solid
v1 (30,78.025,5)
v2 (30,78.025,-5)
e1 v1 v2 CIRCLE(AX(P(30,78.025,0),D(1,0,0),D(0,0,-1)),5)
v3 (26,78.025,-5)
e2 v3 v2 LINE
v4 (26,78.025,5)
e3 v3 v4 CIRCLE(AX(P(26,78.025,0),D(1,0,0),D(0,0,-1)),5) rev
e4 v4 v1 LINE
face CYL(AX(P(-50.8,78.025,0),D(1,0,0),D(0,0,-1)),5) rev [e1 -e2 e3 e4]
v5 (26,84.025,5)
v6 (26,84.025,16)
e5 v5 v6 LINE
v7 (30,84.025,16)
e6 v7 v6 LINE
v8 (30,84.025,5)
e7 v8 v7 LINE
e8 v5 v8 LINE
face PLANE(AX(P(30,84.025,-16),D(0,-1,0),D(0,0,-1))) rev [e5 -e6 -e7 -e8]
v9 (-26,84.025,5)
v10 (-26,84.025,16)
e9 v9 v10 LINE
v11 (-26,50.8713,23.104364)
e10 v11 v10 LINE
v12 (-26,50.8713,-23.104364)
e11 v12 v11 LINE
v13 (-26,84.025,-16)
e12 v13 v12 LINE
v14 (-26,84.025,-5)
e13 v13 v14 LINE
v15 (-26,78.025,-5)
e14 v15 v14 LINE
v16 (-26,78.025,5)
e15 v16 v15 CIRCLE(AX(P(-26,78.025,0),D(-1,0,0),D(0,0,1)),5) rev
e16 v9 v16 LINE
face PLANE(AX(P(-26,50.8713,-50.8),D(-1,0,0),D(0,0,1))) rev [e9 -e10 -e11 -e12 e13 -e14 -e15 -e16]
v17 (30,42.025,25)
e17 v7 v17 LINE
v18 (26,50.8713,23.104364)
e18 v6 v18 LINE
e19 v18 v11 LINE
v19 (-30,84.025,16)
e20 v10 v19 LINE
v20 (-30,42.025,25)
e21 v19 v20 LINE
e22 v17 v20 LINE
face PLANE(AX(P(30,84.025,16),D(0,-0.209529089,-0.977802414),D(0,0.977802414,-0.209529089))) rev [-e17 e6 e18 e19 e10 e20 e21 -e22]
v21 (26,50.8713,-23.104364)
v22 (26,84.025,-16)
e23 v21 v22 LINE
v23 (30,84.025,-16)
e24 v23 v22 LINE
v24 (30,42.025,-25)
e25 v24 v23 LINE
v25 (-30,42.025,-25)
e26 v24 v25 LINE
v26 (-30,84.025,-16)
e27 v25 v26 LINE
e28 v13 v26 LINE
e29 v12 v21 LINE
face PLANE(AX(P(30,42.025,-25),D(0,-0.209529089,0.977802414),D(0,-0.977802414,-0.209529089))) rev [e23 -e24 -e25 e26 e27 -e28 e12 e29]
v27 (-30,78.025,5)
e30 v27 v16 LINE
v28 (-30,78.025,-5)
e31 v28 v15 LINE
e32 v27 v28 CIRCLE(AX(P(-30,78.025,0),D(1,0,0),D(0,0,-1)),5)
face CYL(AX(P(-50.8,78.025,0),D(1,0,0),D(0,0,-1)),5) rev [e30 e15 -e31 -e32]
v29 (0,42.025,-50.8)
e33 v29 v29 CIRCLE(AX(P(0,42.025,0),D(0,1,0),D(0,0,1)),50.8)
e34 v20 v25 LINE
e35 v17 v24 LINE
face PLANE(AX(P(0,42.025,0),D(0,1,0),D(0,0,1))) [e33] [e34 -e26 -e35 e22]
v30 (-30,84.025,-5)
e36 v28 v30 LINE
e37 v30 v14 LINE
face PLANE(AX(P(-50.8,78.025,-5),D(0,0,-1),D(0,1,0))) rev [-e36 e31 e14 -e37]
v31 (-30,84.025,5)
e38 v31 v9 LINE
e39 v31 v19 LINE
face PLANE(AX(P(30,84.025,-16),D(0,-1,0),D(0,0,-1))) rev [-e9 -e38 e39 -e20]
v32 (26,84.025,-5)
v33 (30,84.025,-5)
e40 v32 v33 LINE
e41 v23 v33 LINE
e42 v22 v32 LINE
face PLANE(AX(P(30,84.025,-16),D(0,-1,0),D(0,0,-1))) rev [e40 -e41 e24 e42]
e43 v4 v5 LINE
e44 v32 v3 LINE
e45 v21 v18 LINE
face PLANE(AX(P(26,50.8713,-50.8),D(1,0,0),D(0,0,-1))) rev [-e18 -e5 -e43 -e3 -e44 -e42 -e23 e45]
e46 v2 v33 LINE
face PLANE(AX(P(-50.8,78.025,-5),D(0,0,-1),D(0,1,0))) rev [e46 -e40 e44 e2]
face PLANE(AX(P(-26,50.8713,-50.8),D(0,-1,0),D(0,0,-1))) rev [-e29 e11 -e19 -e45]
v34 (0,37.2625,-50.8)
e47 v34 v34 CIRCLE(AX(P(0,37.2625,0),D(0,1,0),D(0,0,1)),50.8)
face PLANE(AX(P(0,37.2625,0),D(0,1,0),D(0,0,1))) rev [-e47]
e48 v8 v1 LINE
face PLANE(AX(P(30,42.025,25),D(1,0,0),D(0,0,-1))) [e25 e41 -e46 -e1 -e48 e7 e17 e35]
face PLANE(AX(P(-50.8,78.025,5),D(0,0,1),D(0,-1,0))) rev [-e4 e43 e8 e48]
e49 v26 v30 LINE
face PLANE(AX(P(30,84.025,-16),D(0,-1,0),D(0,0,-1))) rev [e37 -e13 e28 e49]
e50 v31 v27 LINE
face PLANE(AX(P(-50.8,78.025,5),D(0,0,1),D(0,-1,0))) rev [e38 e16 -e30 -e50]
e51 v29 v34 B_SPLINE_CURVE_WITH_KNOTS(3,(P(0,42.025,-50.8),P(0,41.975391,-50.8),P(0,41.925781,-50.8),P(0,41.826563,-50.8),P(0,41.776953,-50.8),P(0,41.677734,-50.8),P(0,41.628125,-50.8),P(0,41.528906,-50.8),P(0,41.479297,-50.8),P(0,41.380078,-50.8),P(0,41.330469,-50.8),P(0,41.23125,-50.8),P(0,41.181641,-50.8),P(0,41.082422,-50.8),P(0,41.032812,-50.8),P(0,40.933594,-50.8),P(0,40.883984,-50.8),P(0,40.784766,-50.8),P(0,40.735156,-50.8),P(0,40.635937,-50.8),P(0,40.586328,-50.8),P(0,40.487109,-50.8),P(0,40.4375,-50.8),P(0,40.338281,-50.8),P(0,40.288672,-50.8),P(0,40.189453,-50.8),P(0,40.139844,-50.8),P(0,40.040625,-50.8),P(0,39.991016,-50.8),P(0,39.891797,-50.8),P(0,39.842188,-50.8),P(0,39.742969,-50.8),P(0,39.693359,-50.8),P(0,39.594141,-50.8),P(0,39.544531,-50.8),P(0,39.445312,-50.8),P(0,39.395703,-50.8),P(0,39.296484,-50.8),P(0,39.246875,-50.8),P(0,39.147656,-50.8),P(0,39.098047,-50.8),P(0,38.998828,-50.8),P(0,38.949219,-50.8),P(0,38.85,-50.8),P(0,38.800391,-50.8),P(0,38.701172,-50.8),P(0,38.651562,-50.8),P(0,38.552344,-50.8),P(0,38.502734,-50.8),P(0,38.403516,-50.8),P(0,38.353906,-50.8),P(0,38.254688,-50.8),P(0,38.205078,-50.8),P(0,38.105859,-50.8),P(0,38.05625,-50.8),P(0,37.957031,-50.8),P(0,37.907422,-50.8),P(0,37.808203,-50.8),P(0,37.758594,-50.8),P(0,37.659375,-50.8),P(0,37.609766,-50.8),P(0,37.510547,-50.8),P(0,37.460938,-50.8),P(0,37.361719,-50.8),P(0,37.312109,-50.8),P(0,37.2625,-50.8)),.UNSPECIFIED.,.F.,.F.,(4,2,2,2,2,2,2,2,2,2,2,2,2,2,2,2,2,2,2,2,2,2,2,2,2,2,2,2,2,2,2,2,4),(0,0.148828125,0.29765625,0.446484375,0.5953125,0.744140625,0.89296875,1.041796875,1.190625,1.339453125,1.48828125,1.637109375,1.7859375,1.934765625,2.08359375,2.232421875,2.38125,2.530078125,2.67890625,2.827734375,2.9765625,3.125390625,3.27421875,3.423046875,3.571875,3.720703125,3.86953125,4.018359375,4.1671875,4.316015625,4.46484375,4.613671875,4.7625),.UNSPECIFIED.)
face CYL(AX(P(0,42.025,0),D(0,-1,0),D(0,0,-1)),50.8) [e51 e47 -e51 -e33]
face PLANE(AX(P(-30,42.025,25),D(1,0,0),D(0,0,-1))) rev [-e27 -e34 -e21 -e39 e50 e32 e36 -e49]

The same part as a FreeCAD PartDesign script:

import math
import FreeCAD as App
import Part
import Sketcher

doc = App.newDocument("Part")
params = doc.addObject("Spreadsheet::Sheet", "Params")
for row, (alias, value) in enumerate([
    ("sketch1_diameter", "101.6 mm"),
    ("pad1_length", "4.7625 mm"),
    ("sketch2_height", "50 mm"),
    ("sketch2_height2", "32 mm"),
    ("pad2_length", "60 mm"),
    ("sketch3_radius", "5 mm"),
    ("sketch3_width", "6 mm"),
    ("sketch4_width", "52 mm"),
], start=1):
    params.set(f"A{row}", alias)
    params.set(f"B{row}", "=" + value)
    params.setAlias(f"B{row}", alias)

body = doc.addObject("PartDesign::Body", "Body")

sketch1 = body.newObject("Sketcher::SketchObject", "Sketch")
sketch1.AttachmentSupport = (doc.getObject("XZ_Plane"), [""])
sketch1.MapMode = "FlatFace"
sketch1.AttachmentOffset = App.Placement(App.Vector(0, 0, -37.2625), App.Rotation())
sketch1.addGeometry(Part.Circle(App.Vector(0, 0, 0), App.Vector(0, 0, 1), 51), False)
sketch1.addConstraint([
    Sketcher.Constraint("Coincident", 0, 3, -1, 1),
    Sketcher.Constraint("Diameter", 0, 101.6),
])
sketch1.setExpression("Constraints[1]", "Params.sketch1_diameter")
pad1 = body.newObject("PartDesign::Pad", "Pad")
pad1.Profile = sketch1
pad1.setExpression("Length", "Params.pad1_length")
pad1.Reversed = True

sketch2 = body.newObject("Sketcher::SketchObject", "Sketch001")
sketch2.AttachmentSupport = (doc.getObject("YZ_Plane"), [""])
sketch2.MapMode = "FlatFace"
sketch2.addGeometry([
    Part.LineSegment(App.Vector(42, 25, 0), App.Vector(42, -25, 0)),
    Part.LineSegment(App.Vector(42, -25, 0), App.Vector(84, -16, 0)),
    Part.LineSegment(App.Vector(84, -16, 0), App.Vector(84, 16, 0)),
    Part.LineSegment(App.Vector(84, 16, 0), App.Vector(42, 25, 0)),
], False)
sketch2.addConstraint([
    Sketcher.Constraint("Coincident", 0, 2, 1, 1),
    Sketcher.Constraint("Coincident", 1, 2, 2, 1),
    Sketcher.Constraint("Coincident", 2, 2, 3, 1),
    Sketcher.Constraint("Coincident", 3, 2, 0, 1),
    Sketcher.Constraint("Vertical", 0),
    Sketcher.Constraint("Vertical", 2),
    Sketcher.Constraint("Equal", 1, 3),
    Sketcher.Constraint("DistanceY", 0, 2, 0, 1, 50.0),
    Sketcher.Constraint("DistanceY", 2, 1, 2, 2, 32.0),
    Sketcher.Constraint("DistanceY", 0, 2, -1, 1, 25.0),
    Sketcher.Constraint("DistanceX", 0, 2, 1, 2, 42.0),
    Sketcher.Constraint("DistanceX", -1, 1, 0, 2, 42.025),
])
sketch2.setExpression("Constraints[7]", "Params.sketch2_height")
sketch2.setExpression("Constraints[8]", "Params.sketch2_height2")
pad2 = body.newObject("PartDesign::Pad", "Pad001")
pad2.Profile = sketch2
pad2.setExpression("Length", "Params.pad2_length")
pad2.Midplane = True

sketch3 = body.newObject("Sketcher::SketchObject", "Sketch002")
sketch3.AttachmentSupport = (doc.getObject("YZ_Plane"), [""])
sketch3.MapMode = "FlatFace"
sketch3.AttachmentOffset = App.Placement(App.Vector(0, 0, 30), App.Rotation())
sketch3.addGeometry([
    Part.LineSegment(App.Vector(78, -5, 0), App.Vector(84, -5, 0)),
    Part.LineSegment(App.Vector(84, -5, 0), App.Vector(84, 5, 0)),
    Part.LineSegment(App.Vector(84, 5, 0), App.Vector(78, 5, 0)),
    Part.ArcOfCircle(Part.Circle(App.Vector(78, 0, 0), App.Vector(0, 0, 1), 5), math.radians(90), math.radians(270)),
], False)
sketch3.addConstraint([
    Sketcher.Constraint("Coincident", 0, 2, 1, 1),
    Sketcher.Constraint("Coincident", 1, 2, 2, 1),
    Sketcher.Constraint("Tangent", 2, 2, 3, 1),
    Sketcher.Constraint("Tangent", 3, 2, 0, 1),
    Sketcher.Constraint("Horizontal", 0),
    Sketcher.Constraint("Vertical", 1),
    Sketcher.Constraint("Horizontal", 2),
    Sketcher.Constraint("PointOnObject", 3, 3, -1),
    Sketcher.Constraint("Radius", 3, 5.0),
    Sketcher.Constraint("DistanceX", 0, 1, 0, 2, 6.0),
    Sketcher.Constraint("DistanceX", -1, 1, 3, 3, 78.025),
])
sketch3.setExpression("Constraints[8]", "Params.sketch3_radius")
sketch3.setExpression("Constraints[9]", "Params.sketch3_width")
pocket1 = body.newObject("PartDesign::Pocket", "Pocket")
pocket1.Profile = sketch3
pocket1.Type = "ThroughAll"

sketch4 = body.newObject("Sketcher::SketchObject", "Sketch003")
sketch4.AttachmentSupport = (doc.getObject("XY_Plane"), [""])
sketch4.MapMode = "FlatFace"
sketch4.addGeometry([
    Part.LineSegment(App.Vector(-26, 84, 0), App.Vector(-26, 51, 0)),
    Part.LineSegment(App.Vector(-26, 51, 0), App.Vector(26, 51, 0)),
    Part.LineSegment(App.Vector(26, 51, 0), App.Vector(26, 84, 0)),
    Part.LineSegment(App.Vector(26, 84, 0), App.Vector(-26, 84, 0)),
], False)
sketch4.addConstraint([
    Sketcher.Constraint("Coincident", 0, 2, 1, 1),
    Sketcher.Constraint("Coincident", 1, 2, 2, 1),
    Sketcher.Constraint("Coincident", 2, 2, 3, 1),
    Sketcher.Constraint("Coincident", 3, 2, 0, 1),
    Sketcher.Constraint("Vertical", 0),
    Sketcher.Constraint("Horizontal", 1),
    Sketcher.Constraint("Vertical", 2),
    Sketcher.Constraint("Horizontal", 3),
    Sketcher.Constraint("DistanceX", 1, 1, 1, 2, 52.0),
    Sketcher.Constraint("DistanceX", 0, 2, -1, 1, 26.0),
    Sketcher.Constraint("DistanceY", 0, 2, 0, 1, 33.1537),
    Sketcher.Constraint("DistanceY", -1, 1, 2, 2, 84.025),
])
sketch4.setExpression("Constraints[8]", "Params.sketch4_width")
pocket2 = body.newObject("PartDesign::Pocket", "Pocket001")
pocket2.Profile = sketch4
pocket2.Type = "ThroughAll"
pocket2.Midplane = True

doc.recompute()
